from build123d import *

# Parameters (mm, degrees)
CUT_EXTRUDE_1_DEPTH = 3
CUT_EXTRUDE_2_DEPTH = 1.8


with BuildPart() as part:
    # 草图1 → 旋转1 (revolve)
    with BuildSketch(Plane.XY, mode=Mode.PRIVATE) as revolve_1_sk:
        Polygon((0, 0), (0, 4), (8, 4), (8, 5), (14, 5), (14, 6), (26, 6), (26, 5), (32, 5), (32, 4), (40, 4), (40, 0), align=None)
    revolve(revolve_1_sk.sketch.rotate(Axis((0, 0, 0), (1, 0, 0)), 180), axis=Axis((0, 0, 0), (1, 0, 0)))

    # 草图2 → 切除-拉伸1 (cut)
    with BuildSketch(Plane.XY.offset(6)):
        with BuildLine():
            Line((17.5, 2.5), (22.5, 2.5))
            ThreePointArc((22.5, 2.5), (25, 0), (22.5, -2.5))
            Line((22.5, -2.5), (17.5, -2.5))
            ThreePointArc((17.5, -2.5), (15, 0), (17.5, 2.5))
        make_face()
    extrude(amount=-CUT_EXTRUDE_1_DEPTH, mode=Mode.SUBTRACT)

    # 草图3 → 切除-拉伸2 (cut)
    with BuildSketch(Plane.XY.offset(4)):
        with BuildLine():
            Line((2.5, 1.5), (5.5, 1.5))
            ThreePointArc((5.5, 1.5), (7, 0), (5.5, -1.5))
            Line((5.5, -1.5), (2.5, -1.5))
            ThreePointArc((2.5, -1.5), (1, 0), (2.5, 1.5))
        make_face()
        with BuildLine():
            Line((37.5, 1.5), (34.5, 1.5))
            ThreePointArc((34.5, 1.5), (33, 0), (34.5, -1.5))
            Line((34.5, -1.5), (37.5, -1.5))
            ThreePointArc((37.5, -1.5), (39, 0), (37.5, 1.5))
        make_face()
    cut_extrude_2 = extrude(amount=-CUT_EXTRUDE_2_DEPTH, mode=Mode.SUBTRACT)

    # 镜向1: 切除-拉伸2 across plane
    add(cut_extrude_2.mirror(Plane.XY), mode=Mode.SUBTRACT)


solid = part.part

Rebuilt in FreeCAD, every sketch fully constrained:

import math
import FreeCAD as App
import Part
import Sketcher

doc = App.newDocument("Part")
params = doc.addObject("Spreadsheet::Sheet", "Params")
for row, (alias, value) in enumerate([
    ("sketch1_width", "40 mm"),
    ("sketch1_width2", "8 mm"),
    ("sketch1_width3", "6 mm"),
    ("sketch1_height", "4 mm"),
    ("sketch1_height2", "1 mm"),
    ("revolution_angle", "360 deg"),
    ("sketch2_radius", "2.5 mm"),
    ("sketch2_width", "5 mm"),
    ("pocket1_length", "3 mm"),
    ("sketch3_radius", "1.5 mm"),
    ("sketch3_width", "3 mm"),
    ("pocket2_length", "1.8 mm"),
], start=1):
    params.set(f"A{row}", alias)
    params.set(f"B{row}", "=" + value)
    params.setAlias(f"B{row}", alias)

body = doc.addObject("PartDesign::Body", "Body")

# Sketch on XY plane
sketch1 = body.newObject("Sketcher::SketchObject", "Sketch")
sketch1.AttachmentSupport = (doc.getObject("XY_Plane"), [""])
sketch1.MapMode = "FlatFace"
sketch1.addGeometry([
    Part.LineSegment(App.Vector(0, 4, 0), App.Vector(0, 0, 0)),  # 0
    Part.LineSegment(App.Vector(0, 0, 0), App.Vector(40, 0, 0)),  # 1
    Part.LineSegment(App.Vector(40, 0, 0), App.Vector(40, 4, 0)),  # 2
    Part.LineSegment(App.Vector(40, 4, 0), App.Vector(32, 4, 0)),  # 3
    Part.LineSegment(App.Vector(32, 4, 0), App.Vector(32, 5, 0)),  # 4
    Part.LineSegment(App.Vector(32, 5, 0), App.Vector(26, 5, 0)),  # 5
    Part.LineSegment(App.Vector(26, 5, 0), App.Vector(26, 6, 0)),  # 6
    Part.LineSegment(App.Vector(26, 6, 0), App.Vector(14, 6, 0)),  # 7
    Part.LineSegment(App.Vector(14, 6, 0), App.Vector(14, 5, 0)),  # 8
    Part.LineSegment(App.Vector(14, 5, 0), App.Vector(8, 5, 0)),  # 9
    Part.LineSegment(App.Vector(8, 5, 0), App.Vector(8, 4, 0)),  # 10
    Part.LineSegment(App.Vector(8, 4, 0), App.Vector(0, 4, 0)),  # 11
], False)
sketch1.addConstraint([
    Sketcher.Constraint("Coincident", 0, 2, 1, 1),
    Sketcher.Constraint("Coincident", 1, 2, 2, 1),
    Sketcher.Constraint("Coincident", 2, 2, 3, 1),
    Sketcher.Constraint("Coincident", 3, 2, 4, 1),
    Sketcher.Constraint("Coincident", 4, 2, 5, 1),
    Sketcher.Constraint("Coincident", 5, 2, 6, 1),
    Sketcher.Constraint("Coincident", 6, 2, 7, 1),
    Sketcher.Constraint("Coincident", 7, 2, 8, 1),
    Sketcher.Constraint("Coincident", 8, 2, 9, 1),
    Sketcher.Constraint("Coincident", 9, 2, 10, 1),
    Sketcher.Constraint("Coincident", 10, 2, 11, 1),
    Sketcher.Constraint("Coincident", 11, 2, 0, 1),
    Sketcher.Constraint("Vertical", 0),
    Sketcher.Constraint("Horizontal", 1),
    Sketcher.Constraint("Vertical", 2),
    Sketcher.Constraint("Horizontal", 3),
    Sketcher.Constraint("Vertical", 4),
    Sketcher.Constraint("Horizontal", 5),
    Sketcher.Constraint("Vertical", 6),
    Sketcher.Constraint("Horizontal", 7),
    Sketcher.Constraint("Vertical", 8),
    Sketcher.Constraint("Horizontal", 9),
    Sketcher.Constraint("Vertical", 10),
    Sketcher.Constraint("Horizontal", 11),
    Sketcher.Constraint("Coincident", 0, 2, -1, 1),
    Sketcher.Constraint("Horizontal", 5, 2, 8, 2),
    Sketcher.Constraint("Horizontal", 3, 2, 10, 2),
    Sketcher.Constraint("Equal", 5, 9),
    Sketcher.Constraint("Equal", 3, 11),
    Sketcher.Constraint("Equal", 4, 6),
    Sketcher.Constraint("DistanceX", 1, 1, 1, 2, 40.0),
    Sketcher.Constraint("DistanceX", 3, 2, 3, 1, 8.0),
    Sketcher.Constraint("DistanceX", 5, 2, 5, 1, 6.0),
    Sketcher.Constraint("DistanceY", 0, 2, 0, 1, 4.0),
    Sketcher.Constraint("DistanceY", 4, 1, 4, 2, 1.0),
])
sketch1.setExpression("Constraints[30]", "Params.sketch1_width")
sketch1.setExpression("Constraints[31]", "Params.sketch1_width2")
sketch1.setExpression("Constraints[32]", "Params.sketch1_width3")
sketch1.setExpression("Constraints[33]", "Params.sketch1_height")
sketch1.setExpression("Constraints[34]", "Params.sketch1_height2")
revolution = body.newObject("PartDesign::Revolution", "Revolution")
revolution.Profile = sketch1
revolution.ReferenceAxis = (sketch1, ["H_Axis"])
revolution.setExpression("Angle", "Params.revolution_angle")

# Sketch on XY plane
sketch2 = body.newObject("Sketcher::SketchObject", "Sketch001")
sketch2.AttachmentSupport = (doc.getObject("XY_Plane"), [""])
sketch2.MapMode = "FlatFace"
sketch2.AttachmentOffset = App.Placement(App.Vector(0, 0, 6), App.Rotation())
sketch2.addGeometry([
    Part.LineSegment(App.Vector(22.5, 2.5, 0), App.Vector(17.5, 2.5, 0)),
    Part.ArcOfCircle(Part.Circle(App.Vector(17.5, 0, 0), App.Vector(0, 0, 1), 2.5), math.radians(90), math.radians(270)),
    Part.LineSegment(App.Vector(17.5, -2.5, 0), App.Vector(22.5, -2.5, 0)),
    Part.ArcOfCircle(Part.Circle(App.Vector(22.5, 0, 0), App.Vector(0, 0, 1), 2.5), math.radians(-90), math.radians(90)),
], False)
sketch2.addConstraint([
    Sketcher.Constraint("Tangent", 0, 2, 1, 1),
    Sketcher.Constraint("Tangent", 1, 2, 2, 1),
    Sketcher.Constraint("Tangent", 2, 2, 3, 1),
    Sketcher.Constraint("Tangent", 3, 2, 0, 1),
    Sketcher.Constraint("Horizontal", 0),
    Sketcher.Constraint("Horizontal", 2),
    Sketcher.Constraint("PointOnObject", 1, 3, -1),
    Sketcher.Constraint("Radius", 1, 2.5),
    Sketcher.Constraint("DistanceX", 0, 2, 0, 1, 5.0),
    Sketcher.Constraint("DistanceX", -1, 1, 1, 3, 17.5),
])
sketch2.setExpression("Constraints[7]", "Params.sketch2_radius")
sketch2.setExpression("Constraints[8]", "Params.sketch2_width")
pocket1 = body.newObject("PartDesign::Pocket", "Pocket")
pocket1.Profile = sketch2
pocket1.setExpression("Length", "Params.pocket1_length")

# Sketch on XY plane
sketch3 = body.newObject("Sketcher::SketchObject", "Sketch002")
sketch3.AttachmentSupport = (doc.getObject("XY_Plane"), [""])
sketch3.MapMode = "FlatFace"
sketch3.AttachmentOffset = App.Placement(App.Vector(0, 0, 4), App.Rotation())
sketch3.addGeometry([
    Part.LineSegment(App.Vector(5.5, 1.5, 0), App.Vector(2.5, 1.5, 0)),  # 0
    Part.ArcOfCircle(Part.Circle(App.Vector(2.5, 0, 0), App.Vector(0, 0, 1), 1.5), math.radians(90), math.radians(270)),  # 1
    Part.LineSegment(App.Vector(2.5, -1.5, 0), App.Vector(5.5, -1.5, 0)),  # 2
    Part.ArcOfCircle(Part.Circle(App.Vector(5.5, 0, 0), App.Vector(0, 0, 1), 1.5), math.radians(-90), math.radians(90)),  # 3
    Part.LineSegment(App.Vector(37.5, 1.5, 0), App.Vector(34.5, 1.5, 0)),  # 4
    Part.ArcOfCircle(Part.Circle(App.Vector(34.5, 0, 0), App.Vector(0, 0, 1), 1.5), math.radians(90), math.radians(270)),  # 5
    Part.LineSegment(App.Vector(34.5, -1.5, 0), App.Vector(37.5, -1.5, 0)),  # 6
    Part.ArcOfCircle(Part.Circle(App.Vector(37.5, 0, 0), App.Vector(0, 0, 1), 1.5), math.radians(-90), math.radians(90)),  # 7
], False)
sketch3.addConstraint([
    Sketcher.Constraint("Tangent", 0, 2, 1, 1),
    Sketcher.Constraint("Tangent", 1, 2, 2, 1),
    Sketcher.Constraint("Tangent", 2, 2, 3, 1),
    Sketcher.Constraint("Tangent", 3, 2, 0, 1),
    Sketcher.Constraint("Tangent", 4, 2, 5, 1),
    Sketcher.Constraint("Tangent", 5, 2, 6, 1),
    Sketcher.Constraint("Tangent", 6, 2, 7, 1),
    Sketcher.Constraint("Tangent", 7, 2, 4, 1),
    Sketcher.Constraint("Horizontal", 0),
    Sketcher.Constraint("Horizontal", 2),
    Sketcher.Constraint("Horizontal", 4),
    Sketcher.Constraint("Horizontal", 6),
    Sketcher.Constraint("Equal", 3, 5),
    Sketcher.Constraint("PointOnObject", 1, 3, -1),
    Sketcher.Constraint("PointOnObject", 5, 3, -1),
    Sketcher.Constraint("Equal", 2, 4),
    Sketcher.Constraint("Radius", 1, 1.5),
    Sketcher.Constraint("DistanceX", 0, 2, 0, 1, 3.0),
    Sketcher.Constraint("DistanceX", 3, 3, 5, 3, 29.0),
    Sketcher.Constraint("DistanceX", -1, 1, 1, 3, 2.5),
])
sketch3.setExpression("Constraints[16]", "Params.sketch3_radius")
sketch3.setExpression("Constraints[17]", "Params.sketch3_width")
pocket2 = body.newObject("PartDesign::Pocket", "Pocket001")
pocket2.Profile = sketch3
pocket2.setExpression("Length", "Params.pocket2_length")
doc.recompute()

mirrored = body.newObject("PartDesign::Mirrored", "Mirrored")
mirrored.Originals = [pocket2]
mirrored.MirrorPlane = (doc.getObject("XY_Plane"), [""])
body.Tip = mirrored

doc.recompute()
